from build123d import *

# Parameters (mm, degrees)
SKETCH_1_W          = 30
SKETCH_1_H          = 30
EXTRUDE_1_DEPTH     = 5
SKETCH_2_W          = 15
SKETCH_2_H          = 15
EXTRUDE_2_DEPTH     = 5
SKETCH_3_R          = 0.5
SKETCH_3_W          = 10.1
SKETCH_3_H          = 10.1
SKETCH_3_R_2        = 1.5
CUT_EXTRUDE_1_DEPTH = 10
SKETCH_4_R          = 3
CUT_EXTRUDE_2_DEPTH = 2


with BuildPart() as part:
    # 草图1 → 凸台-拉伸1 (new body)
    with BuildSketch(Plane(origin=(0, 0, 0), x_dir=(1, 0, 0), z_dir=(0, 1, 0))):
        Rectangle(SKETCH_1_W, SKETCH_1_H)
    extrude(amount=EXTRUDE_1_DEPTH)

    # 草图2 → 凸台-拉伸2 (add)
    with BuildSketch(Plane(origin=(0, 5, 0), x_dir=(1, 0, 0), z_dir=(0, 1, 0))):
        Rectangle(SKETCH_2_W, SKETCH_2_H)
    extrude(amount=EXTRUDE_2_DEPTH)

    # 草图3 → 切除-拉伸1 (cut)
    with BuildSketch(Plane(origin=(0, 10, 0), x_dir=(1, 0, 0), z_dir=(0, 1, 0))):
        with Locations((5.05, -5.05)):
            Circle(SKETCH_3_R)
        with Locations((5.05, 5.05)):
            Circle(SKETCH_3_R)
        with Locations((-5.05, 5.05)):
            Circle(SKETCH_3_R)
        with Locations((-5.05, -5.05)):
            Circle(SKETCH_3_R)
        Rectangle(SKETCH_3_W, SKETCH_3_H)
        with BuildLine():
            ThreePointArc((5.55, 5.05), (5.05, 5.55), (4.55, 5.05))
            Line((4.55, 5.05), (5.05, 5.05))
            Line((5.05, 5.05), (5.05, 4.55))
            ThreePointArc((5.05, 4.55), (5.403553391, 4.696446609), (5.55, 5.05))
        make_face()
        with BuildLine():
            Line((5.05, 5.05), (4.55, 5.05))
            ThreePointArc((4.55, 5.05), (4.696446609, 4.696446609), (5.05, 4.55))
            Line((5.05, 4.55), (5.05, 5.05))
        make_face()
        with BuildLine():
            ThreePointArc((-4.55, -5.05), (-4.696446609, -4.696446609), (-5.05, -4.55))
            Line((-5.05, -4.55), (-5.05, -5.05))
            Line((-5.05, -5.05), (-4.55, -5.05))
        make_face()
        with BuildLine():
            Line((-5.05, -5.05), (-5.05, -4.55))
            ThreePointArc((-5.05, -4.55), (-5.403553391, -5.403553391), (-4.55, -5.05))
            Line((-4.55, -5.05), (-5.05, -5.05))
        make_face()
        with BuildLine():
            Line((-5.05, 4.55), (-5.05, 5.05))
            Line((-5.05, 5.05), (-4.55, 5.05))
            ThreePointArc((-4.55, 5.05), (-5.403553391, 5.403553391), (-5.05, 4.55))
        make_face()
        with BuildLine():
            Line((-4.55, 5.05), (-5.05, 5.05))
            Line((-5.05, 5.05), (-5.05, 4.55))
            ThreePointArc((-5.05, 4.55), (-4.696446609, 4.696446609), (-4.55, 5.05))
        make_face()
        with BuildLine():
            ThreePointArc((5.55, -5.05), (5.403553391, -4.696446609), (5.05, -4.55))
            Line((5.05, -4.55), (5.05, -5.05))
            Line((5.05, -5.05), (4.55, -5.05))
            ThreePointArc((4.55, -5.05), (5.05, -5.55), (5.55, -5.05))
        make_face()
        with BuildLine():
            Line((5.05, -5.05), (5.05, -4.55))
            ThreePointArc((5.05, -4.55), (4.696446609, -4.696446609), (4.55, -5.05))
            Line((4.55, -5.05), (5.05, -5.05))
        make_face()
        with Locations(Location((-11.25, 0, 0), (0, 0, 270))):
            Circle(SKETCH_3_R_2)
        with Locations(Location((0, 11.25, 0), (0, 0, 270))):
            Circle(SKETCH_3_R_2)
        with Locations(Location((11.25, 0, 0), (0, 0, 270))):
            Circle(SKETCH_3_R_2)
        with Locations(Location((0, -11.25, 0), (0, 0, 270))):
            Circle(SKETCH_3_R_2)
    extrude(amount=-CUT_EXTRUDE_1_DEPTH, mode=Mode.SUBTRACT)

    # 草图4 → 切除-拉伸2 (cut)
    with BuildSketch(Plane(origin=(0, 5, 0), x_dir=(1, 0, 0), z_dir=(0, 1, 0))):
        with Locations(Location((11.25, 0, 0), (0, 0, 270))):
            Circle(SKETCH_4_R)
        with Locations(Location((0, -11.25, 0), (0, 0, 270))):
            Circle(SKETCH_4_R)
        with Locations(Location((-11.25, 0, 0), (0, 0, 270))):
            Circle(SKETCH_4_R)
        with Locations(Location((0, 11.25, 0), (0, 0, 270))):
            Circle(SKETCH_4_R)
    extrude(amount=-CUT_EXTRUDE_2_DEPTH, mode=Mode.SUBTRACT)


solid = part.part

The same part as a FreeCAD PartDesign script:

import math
import FreeCAD as App
import Part
import Sketcher

V = App.Vector
Q = App.Units.Quantity


def add_polygon(sketch, points):
    """Adds a closed chain of lines whose ends are joined by coincident constraints."""
    first, n = sketch.GeometryCount, len(points)
    for a, b in zip(points, points[1:] + points[:1]):
        sketch.addGeometry(Part.LineSegment(App.Vector(*a, 0), App.Vector(*b, 0)), False)
    for i in range(n):
        sketch.addConstraint(Sketcher.Constraint("Coincident", first + i, 2, first + (i + 1) % n, 1))

doc = App.newDocument("Part")
params = doc.addObject("Spreadsheet::Sheet", "Params")
for row, (alias, value) in enumerate([
    ("sketch1_width", "30 mm"),
    ("pad1_length", "5 mm"),
    ("sketch2_width", "15 mm"),
    ("pad2_length", "5 mm"),
    ("sketch3_diameter", "3 mm"),
    ("sketch3_radius", "0.5 mm"),
    ("sketch3_width", "9.1 mm"),
    ("pocket1_length", "10 mm"),
    ("sketch4_diameter", "6 mm"),
    ("pocket2_length", "2 mm"),
], start=1):
    params.set(f"A{row}", alias)
    params.set(f"B{row}", "=" + value)
    params.setAlias(f"B{row}", alias)

body = doc.addObject("PartDesign::Body", "Body")

sketch1 = body.newObject("Sketcher::SketchObject", "Sketch")
sketch1.AttachmentSupport = (doc.getObject("XZ_Plane"), [""])
sketch1.MapMode = "FlatFace"
add_polygon(sketch1, [(-15, -15), (-15, 15), (15, 15), (15, -15)])
sketch1.addConstraint([
    Sketcher.Constraint("Vertical", 0),
    Sketcher.Constraint("Horizontal", 1),
    Sketcher.Constraint("Vertical", 2),
    Sketcher.Constraint("Horizontal", 3),
    Sketcher.Constraint("Symmetric", 0, 2, 2, 2, -1, 1),
    Sketcher.Constraint("Equal", 3, 0),
    Sketcher.Constraint("DistanceX", 1, 1, 1, 2, Q("30 mm")),
])
sketch1.setExpression("Constraints[10]", "Params.sketch1_width")
pad1 = body.newObject("PartDesign::Pad", "Pad")
pad1.Profile = sketch1
pad1.setExpression("Length", "Params.pad1_length")
pad1.Reversed = True

sketch2 = body.newObject("Sketcher::SketchObject", "Sketch001")
sketch2.AttachmentSupport = (doc.getObject("XZ_Plane"), [""])
sketch2.MapMode = "FlatFace"
sketch2.AttachmentOffset = App.Placement(V(0, 0, -5), App.Rotation())
add_polygon(sketch2, [(-8, -8), (-8, 8), (8, 8), (8, -8)])
sketch2.addConstraint([
    Sketcher.Constraint("Vertical", 0),
    Sketcher.Constraint("Horizontal", 1),
    Sketcher.Constraint("Vertical", 2),
    Sketcher.Constraint("Horizontal", 3),
    Sketcher.Constraint("Symmetric", 0, 2, 2, 2, -1, 1),
    Sketcher.Constraint("Equal", 3, 0),
    Sketcher.Constraint("DistanceX", 1, 1, 1, 2, Q("15 mm")),
])
sketch2.setExpression("Constraints[10]", "Params.sketch2_width")
pad2 = body.newObject("PartDesign::Pad", "Pad001")
pad2.Profile = sketch2
pad2.setExpression("Length", "Params.pad2_length")
pad2.Reversed = True

sketch3 = body.newObject("Sketcher::SketchObject", "Sketch002")
sketch3.AttachmentSupport = (doc.getObject("XZ_Plane"), [""])
sketch3.MapMode = "FlatFace"
sketch3.AttachmentOffset = App.Placement(V(0, 0, -10), App.Rotation())
sketch3.addGeometry([
    Part.LineSegment(V(-5, -4.5, 0), V(-5, 4.5, 0)),
    Part.ArcOfCircle(Part.Circle(V(-5, 5, 0), V(0, 0, 1), 0.5), math.radians(0), math.radians(270)),
    Part.LineSegment(V(-4.5, 5, 0), V(4.5, 5, 0)),
    Part.ArcOfCircle(Part.Circle(V(5, 5, 0), V(0, 0, 1), 0.5), math.radians(-90), math.radians(180)),
    Part.LineSegment(V(5, 4.5, 0), V(5, -4.5, 0)),
    Part.ArcOfCircle(Part.Circle(V(5, -5, 0), V(0, 0, 1), 0.5), math.radians(180), math.radians(450)),
    Part.LineSegment(V(4.5, -5, 0), V(-4.5, -5, 0)),
    Part.ArcOfCircle(Part.Circle(V(-5, -5, 0), V(0, 0, 1), 0.5), math.radians(90), math.radians(360)),
    Part.Circle(V(-11.2, 0, 0), V(0, 0, 1), 1.5),
    Part.Circle(V(0, -11.2, 0), V(0, 0, 1), 1.5),
    Part.Circle(V(11.2, 0, 0), V(0, 0, 1), 1.5),
    Part.Circle(V(0, 11.2, 0), V(0, 0, 1), 1.5),
], False)
sketch3.addConstraint([
    Sketcher.Constraint("Coincident", 0, 2, 1, 2),
    Sketcher.Constraint("Coincident", 1, 1, 2, 1),
    Sketcher.Constraint("Coincident", 2, 2, 3, 2),
    Sketcher.Constraint("Coincident", 3, 1, 4, 1),
    Sketcher.Constraint("Coincident", 4, 2, 5, 2),
    Sketcher.Constraint("Coincident", 5, 1, 6, 1),
    Sketcher.Constraint("Coincident", 6, 2, 7, 2),
    Sketcher.Constraint("Coincident", 7, 1, 0, 1),
    Sketcher.Constraint("Vertical", 0),
    Sketcher.Constraint("Horizontal", 2),
    Sketcher.Constraint("Vertical", 4),
    Sketcher.Constraint("Horizontal", 6),
    Sketcher.Constraint("Equal", 1, 3),
    Sketcher.Constraint("Equal", 3, 5),
    Sketcher.Constraint("Equal", 5, 7),
    Sketcher.Constraint("Equal", 8, 9),
    Sketcher.Constraint("Equal", 9, 10),
    Sketcher.Constraint("Equal", 10, 11),
    Sketcher.Constraint("Symmetric", 1, 3, 5, 3, -1, 1),
    Sketcher.Constraint("Symmetric", 3, 3, 7, 3, -1, 1),
    Sketcher.Constraint("Symmetric", 8, 3, 10, 3, -1, 1),
    Sketcher.Constraint("Symmetric", 9, 3, 11, 3, -1, 1),
    Sketcher.Constraint("Symmetric", 1, 3, 3, 3, -2),
    Sketcher.Constraint("PointOnObject", 8, 3, -1),
    Sketcher.Constraint("PointOnObject", 9, 3, -2),
    Sketcher.Constraint("Horizontal", 3, 3, 1, 1),
    Sketcher.Constraint("Horizontal", 7, 3, 5, 1),
    Sketcher.Constraint("Vertical", 7, 3, 0, 2),
    Sketcher.Constraint("Vertical", 5, 3, 3, 1),
    Sketcher.Constraint("Equal", 6, 0),
    Sketcher.Constraint("Diameter", 8, Q("3 mm")),
    Sketcher.Constraint("Radius", 1, Q("0.5 mm")),
    Sketcher.Constraint("DistanceX", 2, 1, 2, 2, Q("9.1 mm")),
    Sketcher.Constraint("DistanceX", 8, 3, 1, 3, Q("6.2 mm")),
    Sketcher.Constraint("DistanceY", 9, 3, 5, 3, Q("6.2 mm")),
])
sketch3.setExpression("Constraints[30]", "Params.sketch3_diameter")
sketch3.setExpression("Constraints[31]", "Params.sketch3_radius")
sketch3.setExpression("Constraints[32]", "Params.sketch3_width")
pocket1 = body.newObject("PartDesign::Pocket", "Pocket")
pocket1.Profile = sketch3
pocket1.setExpression("Length", "Params.pocket1_length")
pocket1.Reversed = True

sketch4 = body.newObject("Sketcher::SketchObject", "Sketch003")
sketch4.AttachmentSupport = (doc.getObject("XZ_Plane"), [""])
sketch4.MapMode = "FlatFace"
sketch4.AttachmentOffset = App.Placement(V(0, 0, -5), App.Rotation())
sketch4.addGeometry([
    Part.Circle(V(11.2, 0, 0), V(0, 0, 1), 3),
    Part.Circle(V(0, 11.2, 0), V(0, 0, 1), 3),
    Part.Circle(V(-11.2, 0, 0), V(0, 0, 1), 3),
    Part.Circle(V(0, -11.2, 0), V(0, 0, 1), 3),
], False)
sketch4.addConstraint([
    Sketcher.Constraint("Equal", 0, 1),
    Sketcher.Constraint("Equal", 1, 2),
    Sketcher.Constraint("Equal", 2, 3),
    Sketcher.Constraint("Symmetric", 0, 3, 2, 3, -1, 1),
    Sketcher.Constraint("Symmetric", 1, 3, 3, 3, -1, 1),
    Sketcher.Constraint("PointOnObject", 0, 3, -1),
    Sketcher.Constraint("PointOnObject", 1, 3, -2),
    Sketcher.Constraint("Diameter", 0, Q("6 mm")),
    Sketcher.Constraint("DistanceX", 2, 3, 0, 3, Q("22.5 mm")),
    Sketcher.Constraint("DistanceY", 3, 3, 1, 3, Q("22.5 mm")),
])
sketch4.setExpression("Constraints[7]", "Params.sketch4_diameter")
pocket2 = body.newObject("PartDesign::Pocket", "Pocket001")
pocket2.Profile = sketch4
pocket2.setExpression("Length", "Params.pocket2_length")
pocket2.Reversed = True

doc.recompute()
